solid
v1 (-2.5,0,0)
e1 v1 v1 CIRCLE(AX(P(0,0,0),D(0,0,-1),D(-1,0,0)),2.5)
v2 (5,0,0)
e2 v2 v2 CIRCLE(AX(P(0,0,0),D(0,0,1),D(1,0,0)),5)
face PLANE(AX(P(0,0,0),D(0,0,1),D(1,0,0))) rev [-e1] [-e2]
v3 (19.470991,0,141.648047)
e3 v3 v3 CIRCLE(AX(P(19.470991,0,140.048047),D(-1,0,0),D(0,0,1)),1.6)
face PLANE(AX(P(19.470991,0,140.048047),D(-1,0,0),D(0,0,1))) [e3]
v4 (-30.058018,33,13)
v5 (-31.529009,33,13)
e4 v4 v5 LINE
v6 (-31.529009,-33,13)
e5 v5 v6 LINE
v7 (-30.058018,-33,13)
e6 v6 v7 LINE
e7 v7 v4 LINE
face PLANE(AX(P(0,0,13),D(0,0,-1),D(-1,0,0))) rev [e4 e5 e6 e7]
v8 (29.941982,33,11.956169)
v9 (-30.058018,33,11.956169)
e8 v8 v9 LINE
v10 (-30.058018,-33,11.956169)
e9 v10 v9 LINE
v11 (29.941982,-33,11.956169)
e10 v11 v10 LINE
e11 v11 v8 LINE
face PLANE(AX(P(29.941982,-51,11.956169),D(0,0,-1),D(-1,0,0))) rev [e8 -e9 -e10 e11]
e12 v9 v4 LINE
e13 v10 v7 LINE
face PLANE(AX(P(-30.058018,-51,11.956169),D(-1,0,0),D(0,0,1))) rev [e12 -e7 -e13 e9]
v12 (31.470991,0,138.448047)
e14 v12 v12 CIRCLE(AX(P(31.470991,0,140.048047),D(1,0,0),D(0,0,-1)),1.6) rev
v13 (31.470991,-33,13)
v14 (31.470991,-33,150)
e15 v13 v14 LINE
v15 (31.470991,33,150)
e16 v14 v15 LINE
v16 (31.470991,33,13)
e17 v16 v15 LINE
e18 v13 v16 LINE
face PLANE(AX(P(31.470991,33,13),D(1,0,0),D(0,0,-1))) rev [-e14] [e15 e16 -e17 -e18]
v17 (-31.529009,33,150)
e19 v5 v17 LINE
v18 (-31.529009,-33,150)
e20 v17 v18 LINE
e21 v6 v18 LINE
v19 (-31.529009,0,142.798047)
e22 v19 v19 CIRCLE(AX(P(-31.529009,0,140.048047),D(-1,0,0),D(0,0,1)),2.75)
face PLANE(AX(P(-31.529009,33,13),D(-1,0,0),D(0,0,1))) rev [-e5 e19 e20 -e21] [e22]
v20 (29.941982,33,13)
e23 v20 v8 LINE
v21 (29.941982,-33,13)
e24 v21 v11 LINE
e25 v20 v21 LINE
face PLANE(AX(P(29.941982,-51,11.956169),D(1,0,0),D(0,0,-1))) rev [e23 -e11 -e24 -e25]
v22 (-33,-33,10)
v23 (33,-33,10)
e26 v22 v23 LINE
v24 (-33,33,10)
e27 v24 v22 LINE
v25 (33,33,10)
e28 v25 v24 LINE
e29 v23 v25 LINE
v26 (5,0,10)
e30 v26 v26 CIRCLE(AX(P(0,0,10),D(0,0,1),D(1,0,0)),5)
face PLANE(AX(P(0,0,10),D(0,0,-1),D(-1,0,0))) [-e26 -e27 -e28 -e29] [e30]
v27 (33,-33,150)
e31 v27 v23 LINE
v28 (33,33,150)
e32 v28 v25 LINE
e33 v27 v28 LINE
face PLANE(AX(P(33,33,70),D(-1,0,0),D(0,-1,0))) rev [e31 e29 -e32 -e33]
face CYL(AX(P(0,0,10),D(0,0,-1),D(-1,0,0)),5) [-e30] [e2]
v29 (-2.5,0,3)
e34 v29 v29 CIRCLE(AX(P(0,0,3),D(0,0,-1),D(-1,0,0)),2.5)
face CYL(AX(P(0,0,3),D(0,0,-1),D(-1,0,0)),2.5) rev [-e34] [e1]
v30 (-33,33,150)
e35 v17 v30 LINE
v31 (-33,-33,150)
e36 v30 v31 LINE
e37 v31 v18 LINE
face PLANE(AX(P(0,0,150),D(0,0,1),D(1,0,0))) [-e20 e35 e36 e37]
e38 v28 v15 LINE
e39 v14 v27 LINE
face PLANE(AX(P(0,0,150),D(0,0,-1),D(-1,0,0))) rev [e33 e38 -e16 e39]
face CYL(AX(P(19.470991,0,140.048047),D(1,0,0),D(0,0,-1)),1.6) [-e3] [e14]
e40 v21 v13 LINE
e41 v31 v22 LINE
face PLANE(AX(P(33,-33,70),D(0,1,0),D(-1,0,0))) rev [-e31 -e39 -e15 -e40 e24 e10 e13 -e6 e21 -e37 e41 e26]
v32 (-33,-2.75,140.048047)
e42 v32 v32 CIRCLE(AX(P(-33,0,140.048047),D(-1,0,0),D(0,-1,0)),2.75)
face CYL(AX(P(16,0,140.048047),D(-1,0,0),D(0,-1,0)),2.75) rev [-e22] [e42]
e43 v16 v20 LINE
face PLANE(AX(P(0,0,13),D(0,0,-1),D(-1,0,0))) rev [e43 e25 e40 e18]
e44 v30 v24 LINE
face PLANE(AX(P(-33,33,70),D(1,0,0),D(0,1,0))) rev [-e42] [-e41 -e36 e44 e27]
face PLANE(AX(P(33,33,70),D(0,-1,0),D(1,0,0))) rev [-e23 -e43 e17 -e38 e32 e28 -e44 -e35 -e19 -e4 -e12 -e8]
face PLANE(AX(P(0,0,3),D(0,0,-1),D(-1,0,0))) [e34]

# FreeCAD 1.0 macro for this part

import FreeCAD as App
import Part
import Sketcher


def add_polygon(sketch, points):
    """Adds a closed chain of lines whose ends are joined by coincident constraints."""
    first, n = sketch.GeometryCount, len(points)
    for a, b in zip(points, points[1:] + points[:1]):
        sketch.addGeometry(Part.LineSegment(App.Vector(*a, 0), App.Vector(*b, 0)), False)
    for i in range(n):
        sketch.addConstraint(Sketcher.Constraint("Coincident", first + i, 2, first + (i + 1) % n, 1))

doc = App.newDocument("Part")
params = doc.addObject("Spreadsheet::Sheet", "Params")
for row, (alias, value) in enumerate([
    ("sketch1_diameter", "10 mm"),
    ("pad1_length", "10 mm"),
    ("sketch2_diameter", "5 mm"),
    ("pocket1_length", "3 mm"),
    ("sketch3_width", "66 mm"),
    ("pad2_length", "60 mm"),
    ("sketch4_width", "60 mm"),
    ("sketch4_height", "63 mm"),
    ("pocket2_length", "57 mm"),
    ("sketch5_width", "60 mm"),
    ("sketch5_height", "59 mm"),
    ("pocket3_length", "84 mm"),
    ("sketch6_height", "66 mm"),
    ("pad3_length", "80 mm"),
    ("sketch7_height", "66 mm"),
    ("pocket4_length", "137 mm"),
    ("sketch8_diameter", "5.5 mm"),
    ("pocket5_length", "49 mm"),
    ("sketch9_diameter", "3.2 mm"),
    ("pad4_length", "12 mm"),
], start=1):
    params.set(f"A{row}", alias)
    params.set(f"B{row}", "=" + value)
    params.setAlias(f"B{row}", alias)

body = doc.addObject("PartDesign::Body", "Body")

sketch1 = doc.addObject("Sketcher::SketchObject", "Sketch")
body.addObject(sketch1)
sketch1.AttachmentSupport = (doc.XY_Plane, [""])
sketch1.MapMode = "FlatFace"
sketch1.addGeometry(Part.Circle(App.Vector(0, 0, 0), App.Vector(0, 0, 1), 5), False)
sketch1.addConstraint(Sketcher.Constraint("Coincident", 0, 3, -1, 1))
sketch1.addConstraint(Sketcher.Constraint("Diameter", 0, 10.0))
sketch1.setExpression("Constraints[1]", "Params.sketch1_diameter")
pad1 = doc.addObject("PartDesign::Pad", "Pad")
body.addObject(pad1)
pad1.Profile = sketch1
pad1.setExpression("Length", "Params.pad1_length")

sketch2 = doc.addObject("Sketcher::SketchObject", "Sketch001")
body.addObject(sketch2)
sketch2.AttachmentSupport = (doc.XY_Plane, [""])
sketch2.MapMode = "FlatFace"
sketch2.addGeometry(Part.Circle(App.Vector(0, 0, 0), App.Vector(0, 0, 1), 2.5), False)
sketch2.addConstraint(Sketcher.Constraint("Coincident", 0, 3, -1, 1))
sketch2.addConstraint(Sketcher.Constraint("Diameter", 0, 5.0))
sketch2.setExpression("Constraints[1]", "Params.sketch2_diameter")
pocket1 = doc.addObject("PartDesign::Pocket", "Pocket")
body.addObject(pocket1)
pocket1.Profile = sketch2
pocket1.setExpression("Length", "Params.pocket1_length")
pocket1.Reversed = True

sketch3 = doc.addObject("Sketcher::SketchObject", "Sketch002")
body.addObject(sketch3)
sketch3.AttachmentSupport = (doc.XY_Plane, [""])
sketch3.MapMode = "FlatFace"
sketch3.AttachmentOffset = App.Placement(App.Vector(0, 0, 10), App.Rotation())
add_polygon(sketch3, [(-33, 33), (-33, -33), (33, -33), (33, 33)])
sketch3.addConstraint(Sketcher.Constraint("Vertical", 0))
sketch3.addConstraint(Sketcher.Constraint("Horizontal", 1))
sketch3.addConstraint(Sketcher.Constraint("Vertical", 2))
sketch3.addConstraint(Sketcher.Constraint("Horizontal", 3))
sketch3.addConstraint(Sketcher.Constraint("Symmetric", 0, 2, 2, 2, -1, 1))
sketch3.addConstraint(Sketcher.Constraint("Equal", 3, 0))
sketch3.addConstraint(Sketcher.Constraint("DistanceX", 1, 1, 1, 2, 66.0))
sketch3.setExpression("Constraints[10]", "Params.sketch3_width")
pad2 = doc.addObject("PartDesign::Pad", "Pad001")
body.addObject(pad2)
pad2.Profile = sketch3
pad2.setExpression("Length", "Params.pad2_length")

sketch4 = doc.addObject("Sketcher::SketchObject", "Sketch003")
body.addObject(sketch4)
sketch4.AttachmentSupport = (doc.XY_Plane, [""])
sketch4.MapMode = "FlatFace"
sketch4.AttachmentOffset = App.Placement(App.Vector(0, 0, 70), App.Rotation())
add_polygon(sketch4, [(-30, 31.5), (-30, -31.5), (30, -31.5), (30, 31.5)])
sketch4.addConstraint(Sketcher.Constraint("Vertical", 0))
sketch4.addConstraint(Sketcher.Constraint("Horizontal", 1))
sketch4.addConstraint(Sketcher.Constraint("Vertical", 2))
sketch4.addConstraint(Sketcher.Constraint("Horizontal", 3))
sketch4.addConstraint(Sketcher.Constraint("Symmetric", 0, 2, 2, 2, -1, 1))
sketch4.addConstraint(Sketcher.Constraint("DistanceX", 1, 1, 1, 2, 60.0))
sketch4.addConstraint(Sketcher.Constraint("DistanceY", 0, 2, 0, 1, 63.0))
sketch4.setExpression("Constraints[9]", "Params.sketch4_width")
sketch4.setExpression("Constraints[10]", "Params.sketch4_height")
pocket2 = doc.addObject("PartDesign::Pocket", "Pocket001")
body.addObject(pocket2)
pocket2.Profile = sketch4
pocket2.setExpression("Length", "Params.pocket2_length")

sketch5 = doc.addObject("Sketcher::SketchObject", "Sketch004")
body.addObject(sketch5)
sketch5.AttachmentSupport = (doc.XZ_Plane, [""])
sketch5.MapMode = "FlatFace"
sketch5.AttachmentOffset = App.Placement(App.Vector(0, 0, -33), App.Rotation())
add_polygon(sketch5, [(-30.058018, 11.956169), (-30.058018, 70.956169), (29.941982, 70.956169), (29.941982, 11.956169)])
sketch5.addConstraint(Sketcher.Constraint("Vertical", 0))
sketch5.addConstraint(Sketcher.Constraint("Horizontal", 1))
sketch5.addConstraint(Sketcher.Constraint("Vertical", 2))
sketch5.addConstraint(Sketcher.Constraint("Horizontal", 3))
sketch5.addConstraint(Sketcher.Constraint("DistanceX", 1, 1, 1, 2, 60.0))
sketch5.addConstraint(Sketcher.Constraint("DistanceY", 0, 1, 0, 2, 59.0))
sketch5.addConstraint(Sketcher.Constraint("DistanceY", -1, 1, 0, 2, 70.956169))
sketch5.addConstraint(Sketcher.Constraint("DistanceX", 0, 2, -1, 1, 30.058018))
sketch5.setExpression("Constraints[8]", "Params.sketch5_width")
sketch5.setExpression("Constraints[9]", "Params.sketch5_height")
pocket3 = doc.addObject("PartDesign::Pocket", "Pocket002")
body.addObject(pocket3)
pocket3.Profile = sketch5
pocket3.setExpression("Length", "Params.pocket3_length")
pocket3.Reversed = True

sketch6 = doc.addObject("Sketcher::SketchObject", "Sketch005")
body.addObject(sketch6)
sketch6.AttachmentSupport = (doc.XY_Plane, [""])
sketch6.MapMode = "FlatFace"
sketch6.AttachmentOffset = App.Placement(App.Vector(0, 0, 70), App.Rotation())
add_polygon(sketch6, [(-33, 33), (-33, -33), (-30.058018, -33), (-30.058018, 33)])
add_polygon(sketch6, [(29.941982, 33), (29.941982, -33), (33, -33), (33, 33)])
sketch6.addConstraint(Sketcher.Constraint("Vertical", 0))
sketch6.addConstraint(Sketcher.Constraint("Horizontal", 1))
sketch6.addConstraint(Sketcher.Constraint("Vertical", 2))
sketch6.addConstraint(Sketcher.Constraint("Horizontal", 3))
sketch6.addConstraint(Sketcher.Constraint("Vertical", 4))
sketch6.addConstraint(Sketcher.Constraint("Horizontal", 5))
sketch6.addConstraint(Sketcher.Constraint("Vertical", 6))
sketch6.addConstraint(Sketcher.Constraint("Horizontal", 7))
sketch6.addConstraint(Sketcher.Constraint("Symmetric", 3, 2, 5, 2, -1, 1))
sketch6.addConstraint(Sketcher.Constraint("Horizontal", 1, 2, 4, 2))
sketch6.addConstraint(Sketcher.Constraint("Horizontal", 3, 2, 6, 2))
sketch6.addConstraint(Sketcher.Constraint("DistanceY", 0, 2, 0, 1, 66.0))
sketch6.addConstraint(Sketcher.Constraint("DistanceX", 0, 2, -1, 1, 33.0))
sketch6.addConstraint(Sketcher.Constraint("DistanceX", 1, 2, 4, 2, 60.0))
sketch6.addConstraint(Sketcher.Constraint("DistanceX", 1, 1, 1, 2, 2.941982))
sketch6.setExpression("Constraints[19]", "Params.sketch6_height")
pad3 = doc.addObject("PartDesign::Pad", "Pad002")
body.addObject(pad3)
pad3.Profile = sketch6
pad3.setExpression("Length", "Params.pad3_length")

sketch7 = doc.addObject("Sketcher::SketchObject", "Sketch006")
body.addObject(sketch7)
sketch7.AttachmentSupport = (doc.XY_Plane, [""])
sketch7.MapMode = "FlatFace"
sketch7.AttachmentOffset = App.Placement(App.Vector(0, 0, 150), App.Rotation())
add_polygon(sketch7, [(-31.529009, 33), (-31.529009, -33), (-30.058018, -33), (-30.058018, 33)])
add_polygon(sketch7, [(29.941982, 33), (29.941982, -33), (31.470991, -33), (31.470991, 33)])
sketch7.addConstraint(Sketcher.Constraint("Vertical", 0))
sketch7.addConstraint(Sketcher.Constraint("Horizontal", 1))
sketch7.addConstraint(Sketcher.Constraint("Vertical", 2))
sketch7.addConstraint(Sketcher.Constraint("Horizontal", 3))
sketch7.addConstraint(Sketcher.Constraint("Vertical", 4))
sketch7.addConstraint(Sketcher.Constraint("Horizontal", 5))
sketch7.addConstraint(Sketcher.Constraint("Vertical", 6))
sketch7.addConstraint(Sketcher.Constraint("Horizontal", 7))
sketch7.addConstraint(Sketcher.Constraint("Horizontal", 1, 2, 4, 2))
sketch7.addConstraint(Sketcher.Constraint("Horizontal", 3, 2, 6, 2))
sketch7.addConstraint(Sketcher.Constraint("DistanceY", 0, 2, 0, 1, 66.0))
sketch7.addConstraint(Sketcher.Constraint("DistanceY", 0, 2, -1, 1, 33.0))
sketch7.addConstraint(Sketcher.Constraint("DistanceX", 1, 2, 4, 2, 60.0))
sketch7.addConstraint(Sketcher.Constraint("DistanceX", 0, 2, 5, 2, 63.0))
sketch7.addConstraint(Sketcher.Constraint("DistanceX", 1, 1, 1, 2, 1.470991))
sketch7.addConstraint(Sketcher.Constraint("DistanceX", 0, 2, -1, 1, 31.529009))
sketch7.setExpression("Constraints[18]", "Params.sketch7_height")
pocket4 = doc.addObject("PartDesign::Pocket", "Pocket003")
body.addObject(pocket4)
pocket4.Profile = sketch7
pocket4.setExpression("Length", "Params.pocket4_length")

sketch8 = doc.addObject("Sketcher::SketchObject", "Sketch007")
body.addObject(sketch8)
sketch8.AttachmentSupport = (doc.YZ_Plane, [""])
sketch8.MapMode = "FlatFace"
sketch8.AttachmentOffset = App.Placement(App.Vector(0, 0, -33), App.Rotation())
sketch8.addGeometry(Part.Circle(App.Vector(0, 140.048047, 0), App.Vector(0, 0, 1), 2.75), False)
sketch8.addConstraint(Sketcher.Constraint("PointOnObject", 0, 3, -2))
sketch8.addConstraint(Sketcher.Constraint("Diameter", 0, 5.5))
sketch8.addConstraint(Sketcher.Constraint("DistanceY", -1, 1, 0, 3, 140.048047))
sketch8.setExpression("Constraints[1]", "Params.sketch8_diameter")
pocket5 = doc.addObject("PartDesign::Pocket", "Pocket004")
body.addObject(pocket5)
pocket5.Profile = sketch8
pocket5.setExpression("Length", "Params.pocket5_length")
pocket5.Reversed = True

sketch9 = doc.addObject("Sketcher::SketchObject", "Sketch008")
body.addObject(sketch9)
sketch9.AttachmentSupport = (doc.YZ_Plane, [""])
sketch9.MapMode = "FlatFace"
sketch9.AttachmentOffset = App.Placement(App.Vector(0, 0, 31.470991), App.Rotation())
sketch9.addGeometry(Part.Circle(App.Vector(0, 140.048047, 0), App.Vector(0, 0, 1), 1.6), False)
sketch9.addConstraint(Sketcher.Constraint("PointOnObject", 0, 3, -2))
sketch9.addConstraint(Sketcher.Constraint("Diameter", 0, 3.2))
sketch9.addConstraint(Sketcher.Constraint("DistanceY", -1, 1, 0, 3, 140.048047))
sketch9.setExpression("Constraints[1]", "Params.sketch9_diameter")
pad4 = doc.addObject("PartDesign::Pad", "Pad003")
body.addObject(pad4)
pad4.Profile = sketch9
pad4.setExpression("Length", "Params.pad4_length")
pad4.Reversed = True

doc.recompute()
